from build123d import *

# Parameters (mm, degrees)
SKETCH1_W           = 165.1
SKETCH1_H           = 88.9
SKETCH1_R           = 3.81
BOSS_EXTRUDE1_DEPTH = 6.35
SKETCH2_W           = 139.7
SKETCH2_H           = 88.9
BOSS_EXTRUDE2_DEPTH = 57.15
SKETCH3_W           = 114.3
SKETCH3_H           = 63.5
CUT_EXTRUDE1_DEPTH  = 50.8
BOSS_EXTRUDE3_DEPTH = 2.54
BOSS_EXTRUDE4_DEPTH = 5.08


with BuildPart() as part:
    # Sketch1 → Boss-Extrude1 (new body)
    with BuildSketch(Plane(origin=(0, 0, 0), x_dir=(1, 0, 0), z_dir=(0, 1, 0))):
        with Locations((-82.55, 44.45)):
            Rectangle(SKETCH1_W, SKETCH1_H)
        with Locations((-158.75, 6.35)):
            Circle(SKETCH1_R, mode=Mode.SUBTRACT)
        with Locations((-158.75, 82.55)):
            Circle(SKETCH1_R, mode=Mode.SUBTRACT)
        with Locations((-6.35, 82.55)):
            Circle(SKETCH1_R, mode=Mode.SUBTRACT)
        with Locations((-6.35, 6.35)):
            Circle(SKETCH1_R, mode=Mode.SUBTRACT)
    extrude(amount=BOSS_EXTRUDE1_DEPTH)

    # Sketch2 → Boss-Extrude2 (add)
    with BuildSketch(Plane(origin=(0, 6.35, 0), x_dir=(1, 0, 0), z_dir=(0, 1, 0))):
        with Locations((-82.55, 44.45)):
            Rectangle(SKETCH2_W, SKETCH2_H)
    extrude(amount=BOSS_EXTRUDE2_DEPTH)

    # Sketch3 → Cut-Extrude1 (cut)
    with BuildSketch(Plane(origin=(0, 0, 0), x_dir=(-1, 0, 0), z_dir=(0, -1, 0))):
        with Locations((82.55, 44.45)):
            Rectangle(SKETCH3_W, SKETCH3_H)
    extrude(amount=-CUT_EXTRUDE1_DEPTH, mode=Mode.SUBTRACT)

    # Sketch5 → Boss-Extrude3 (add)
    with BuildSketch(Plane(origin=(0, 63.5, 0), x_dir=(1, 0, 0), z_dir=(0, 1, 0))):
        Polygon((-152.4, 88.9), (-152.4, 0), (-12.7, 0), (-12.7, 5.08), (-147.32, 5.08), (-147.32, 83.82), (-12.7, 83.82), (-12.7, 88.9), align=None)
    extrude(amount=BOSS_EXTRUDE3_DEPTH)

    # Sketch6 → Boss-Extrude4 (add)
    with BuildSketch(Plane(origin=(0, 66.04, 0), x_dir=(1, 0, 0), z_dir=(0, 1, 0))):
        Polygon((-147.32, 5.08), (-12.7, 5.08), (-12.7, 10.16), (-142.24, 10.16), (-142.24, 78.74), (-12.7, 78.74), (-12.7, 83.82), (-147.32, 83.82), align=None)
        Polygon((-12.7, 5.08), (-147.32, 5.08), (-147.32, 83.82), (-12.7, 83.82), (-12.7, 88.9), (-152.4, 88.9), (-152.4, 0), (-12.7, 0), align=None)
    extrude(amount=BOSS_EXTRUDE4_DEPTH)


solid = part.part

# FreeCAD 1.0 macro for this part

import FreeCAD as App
import Part
import Sketcher
Q = App.Units.Quantity


def add_polygon(sketch, points):
    """Adds a closed chain of lines whose ends are joined by coincident constraints."""
    first, n = sketch.GeometryCount, len(points)
    for a, b in zip(points, points[1:] + points[:1]):
        sketch.addGeometry(Part.LineSegment(App.Vector(*a, 0), App.Vector(*b, 0)), False)
    for i in range(n):
        sketch.addConstraint(Sketcher.Constraint("Coincident", first + i, 2, first + (i + 1) % n, 1))

doc = App.newDocument("Part")
body = doc.addObject("PartDesign::Body", "Body")

sketch1 = body.newObject("Sketcher::SketchObject", "Sketch")
sketch1.AttachmentSupport = (doc.getObject("XZ_Plane"), [""])
sketch1.MapMode = "FlatFace"
add_polygon(sketch1, [(-165.1, -88.9), (-165.1, 0), (0, 0), (0, -88.9)])
sketch1.addGeometry(Part.Circle(App.Vector(-158.8, -6.3, 0), App.Vector(0, 0, 1), 3.8), False)
sketch1.addGeometry(Part.Circle(App.Vector(-6.3, -6.3, 0), App.Vector(0, 0, 1), 3.8), False)
sketch1.addGeometry(Part.Circle(App.Vector(-158.8, -82.5, 0), App.Vector(0, 0, 1), 3.8), False)
sketch1.addGeometry(Part.Circle(App.Vector(-6.3, -82.5, 0), App.Vector(0, 0, 1), 3.8), False)
sketch1.addConstraint([
    Sketcher.Constraint("Vertical", 0),
    Sketcher.Constraint("Horizontal", 1),
    Sketcher.Constraint("Vertical", 2),
    Sketcher.Constraint("Horizontal", 3),
    Sketcher.Constraint("Coincident", 1, 2, -1, 1),
    Sketcher.Constraint("Equal", 4, 5),
    Sketcher.Constraint("Equal", 5, 6),
    Sketcher.Constraint("Equal", 6, 7),
    Sketcher.Constraint("Horizontal", 4, 3, 5, 3),
    Sketcher.Constraint("Horizontal", 6, 3, 7, 3),
    Sketcher.Constraint("Vertical", 4, 3, 6, 3),
    Sketcher.Constraint("Vertical", 5, 3, 7, 3),
    Sketcher.Constraint("Diameter", 4, Q("0.3 in")),
    Sketcher.Constraint("DistanceX", 1, 1, 1, 2, Q("6.5 in")),
    Sketcher.Constraint("DistanceY", 0, 1, 0, 2, Q("3.5 in")),
    Sketcher.Constraint("DistanceX", 4, 3, 5, 3, Q("6 in")),
    Sketcher.Constraint("DistanceY", 6, 3, 4, 3, Q("3 in")),
    Sketcher.Constraint("DistanceX", 4, 3, -1, 1, Q("6.25 in")),
    Sketcher.Constraint("DistanceY", 4, 3, -1, 1, Q("0.25 in")),
])
pad1 = body.newObject("PartDesign::Pad", "Pad")
pad1.Profile = sketch1
pad1.Length = Q("0.25 in")
pad1.Reversed = True

sketch2 = body.newObject("Sketcher::SketchObject", "Sketch001")
sketch2.AttachmentSupport = (doc.getObject("XZ_Plane"), [""])
sketch2.MapMode = "FlatFace"
sketch2.AttachmentOffset = App.Placement(App.Vector(0, 0, -0.25 * 25.4), App.Rotation())
add_polygon(sketch2, [(-152, -89), (-152, 0), (-13, 0), (-13, -89)])
sketch2.addConstraint([
    Sketcher.Constraint("Vertical", 0),
    Sketcher.Constraint("Horizontal", 1),
    Sketcher.Constraint("Vertical", 2),
    Sketcher.Constraint("Horizontal", 3),
    Sketcher.Constraint("PointOnObject", 0, 2, -1),
    Sketcher.Constraint("DistanceX", 1, 1, 1, 2, Q("5.5 in")),
    Sketcher.Constraint("DistanceY", 0, 1, 0, 2, Q("3.5 in")),
    Sketcher.Constraint("DistanceX", 0, 2, -1, 1, Q("6 in")),
])
pad2 = body.newObject("PartDesign::Pad", "Pad001")
pad2.Profile = sketch2
pad2.Length = Q("2.25 in")
pad2.Reversed = True

sketch3 = body.newObject("Sketcher::SketchObject", "Sketch002")
sketch3.AttachmentSupport = (doc.getObject("XZ_Plane"), [""])
sketch3.MapMode = "FlatFace"
add_polygon(sketch3, [(-25, -76), (-25, -13), (-140, -13), (-140, -76)])
sketch3.addConstraint([
    Sketcher.Constraint("Vertical", 0),
    Sketcher.Constraint("Horizontal", 1),
    Sketcher.Constraint("Vertical", 2),
    Sketcher.Constraint("Horizontal", 3),
    Sketcher.Constraint("DistanceX", 1, 2, 1, 1, Q("4.5 in")),
    Sketcher.Constraint("DistanceY", 0, 1, 0, 2, Q("2.5 in")),
    Sketcher.Constraint("DistanceX", 0, 2, -1, 1, Q("1 in")),
    Sketcher.Constraint("DistanceY", 2, 2, -1, 1, Q("3 in")),
])
pocket1 = body.newObject("PartDesign::Pocket", "Pocket")
pocket1.Profile = sketch3
pocket1.Length = Q("2 in")

sketch4 = body.newObject("Sketcher::SketchObject", "Sketch003")
sketch4.AttachmentSupport = (doc.getObject("XZ_Plane"), [""])
sketch4.MapMode = "FlatFace"
sketch4.AttachmentOffset = App.Placement(App.Vector(0, 0, -2.5 * 25.4), App.Rotation())
add_polygon(sketch4, [(-152, -89), (-152, 0), (-13, 0), (-13, -5), (-147, -5), (-147, -84), (-13, -84), (-13, -89)])
sketch4.addConstraint([
    Sketcher.Constraint("Vertical", 0),
    Sketcher.Constraint("Horizontal", 1),
    Sketcher.Constraint("Vertical", 2),
    Sketcher.Constraint("Horizontal", 3),
    Sketcher.Constraint("Vertical", 4),
    Sketcher.Constraint("Horizontal", 5),
    Sketcher.Constraint("Vertical", 6),
    Sketcher.Constraint("Horizontal", 7),
    Sketcher.Constraint("PointOnObject", 0, 2, -1),
    Sketcher.Constraint("Vertical", 2, 2, 5, 2),
    Sketcher.Constraint("Equal", 2, 6),
    Sketcher.Constraint("DistanceX", 1, 1, 1, 2, Q("5.5 in")),
    Sketcher.Constraint("DistanceX", 3, 2, 3, 1, Q("5.3 in")),
    Sketcher.Constraint("DistanceY", 0, 1, 0, 2, Q("3.5 in")),
    Sketcher.Constraint("DistanceY", 2, 2, 2, 1, Q("0.2 in")),
    Sketcher.Constraint("DistanceX", 0, 2, -1, 1, Q("6 in")),
])
pad3 = body.newObject("PartDesign::Pad", "Pad002")
pad3.Profile = sketch4
pad3.Length = Q("0.1 in")
pad3.Reversed = True

sketch5 = body.newObject("Sketcher::SketchObject", "Sketch004")
sketch5.AttachmentSupport = (doc.getObject("XZ_Plane"), [""])
sketch5.MapMode = "FlatFace"
sketch5.AttachmentOffset = App.Placement(App.Vector(0, 0, -2.6 * 25.4), App.Rotation())
add_polygon(sketch5, [(-13, -10), (-142, -10), (-142, -79), (-13, -79), (-13, -89), (-152, -89), (-152, 0), (-13, 0)])
sketch5.addConstraint([
    Sketcher.Constraint("Horizontal", 0),
    Sketcher.Constraint("Vertical", 1),
    Sketcher.Constraint("Horizontal", 2),
    Sketcher.Constraint("Vertical", 3),
    Sketcher.Constraint("Horizontal", 4),
    Sketcher.Constraint("Vertical", 5),
    Sketcher.Constraint("Horizontal", 6),
    Sketcher.Constraint("Vertical", 7),
    Sketcher.Constraint("PointOnObject", 5, 2, -1),
    Sketcher.Constraint("Vertical", 3, 2, 6, 2),
    Sketcher.Constraint("Equal", 3, 7),
    Sketcher.Constraint("DistanceX", 0, 2, 0, 1, Q("5.1 in")),
    Sketcher.Constraint("DistanceX", 4, 2, 4, 1, Q("5.5 in")),
    Sketcher.Constraint("DistanceY", 1, 2, 1, 1, Q("2.7 in")),
    Sketcher.Constraint("DistanceY", 3, 2, 3, 1, Q("0.4 in")),
    Sketcher.Constraint("DistanceX", 4, 2, -1, 1, Q("6 in")),
])
pad4 = body.newObject("PartDesign::Pad", "Pad003")
pad4.Profile = sketch5
pad4.Length = Q("0.2 in")
pad4.Reversed = True

doc.recompute()
